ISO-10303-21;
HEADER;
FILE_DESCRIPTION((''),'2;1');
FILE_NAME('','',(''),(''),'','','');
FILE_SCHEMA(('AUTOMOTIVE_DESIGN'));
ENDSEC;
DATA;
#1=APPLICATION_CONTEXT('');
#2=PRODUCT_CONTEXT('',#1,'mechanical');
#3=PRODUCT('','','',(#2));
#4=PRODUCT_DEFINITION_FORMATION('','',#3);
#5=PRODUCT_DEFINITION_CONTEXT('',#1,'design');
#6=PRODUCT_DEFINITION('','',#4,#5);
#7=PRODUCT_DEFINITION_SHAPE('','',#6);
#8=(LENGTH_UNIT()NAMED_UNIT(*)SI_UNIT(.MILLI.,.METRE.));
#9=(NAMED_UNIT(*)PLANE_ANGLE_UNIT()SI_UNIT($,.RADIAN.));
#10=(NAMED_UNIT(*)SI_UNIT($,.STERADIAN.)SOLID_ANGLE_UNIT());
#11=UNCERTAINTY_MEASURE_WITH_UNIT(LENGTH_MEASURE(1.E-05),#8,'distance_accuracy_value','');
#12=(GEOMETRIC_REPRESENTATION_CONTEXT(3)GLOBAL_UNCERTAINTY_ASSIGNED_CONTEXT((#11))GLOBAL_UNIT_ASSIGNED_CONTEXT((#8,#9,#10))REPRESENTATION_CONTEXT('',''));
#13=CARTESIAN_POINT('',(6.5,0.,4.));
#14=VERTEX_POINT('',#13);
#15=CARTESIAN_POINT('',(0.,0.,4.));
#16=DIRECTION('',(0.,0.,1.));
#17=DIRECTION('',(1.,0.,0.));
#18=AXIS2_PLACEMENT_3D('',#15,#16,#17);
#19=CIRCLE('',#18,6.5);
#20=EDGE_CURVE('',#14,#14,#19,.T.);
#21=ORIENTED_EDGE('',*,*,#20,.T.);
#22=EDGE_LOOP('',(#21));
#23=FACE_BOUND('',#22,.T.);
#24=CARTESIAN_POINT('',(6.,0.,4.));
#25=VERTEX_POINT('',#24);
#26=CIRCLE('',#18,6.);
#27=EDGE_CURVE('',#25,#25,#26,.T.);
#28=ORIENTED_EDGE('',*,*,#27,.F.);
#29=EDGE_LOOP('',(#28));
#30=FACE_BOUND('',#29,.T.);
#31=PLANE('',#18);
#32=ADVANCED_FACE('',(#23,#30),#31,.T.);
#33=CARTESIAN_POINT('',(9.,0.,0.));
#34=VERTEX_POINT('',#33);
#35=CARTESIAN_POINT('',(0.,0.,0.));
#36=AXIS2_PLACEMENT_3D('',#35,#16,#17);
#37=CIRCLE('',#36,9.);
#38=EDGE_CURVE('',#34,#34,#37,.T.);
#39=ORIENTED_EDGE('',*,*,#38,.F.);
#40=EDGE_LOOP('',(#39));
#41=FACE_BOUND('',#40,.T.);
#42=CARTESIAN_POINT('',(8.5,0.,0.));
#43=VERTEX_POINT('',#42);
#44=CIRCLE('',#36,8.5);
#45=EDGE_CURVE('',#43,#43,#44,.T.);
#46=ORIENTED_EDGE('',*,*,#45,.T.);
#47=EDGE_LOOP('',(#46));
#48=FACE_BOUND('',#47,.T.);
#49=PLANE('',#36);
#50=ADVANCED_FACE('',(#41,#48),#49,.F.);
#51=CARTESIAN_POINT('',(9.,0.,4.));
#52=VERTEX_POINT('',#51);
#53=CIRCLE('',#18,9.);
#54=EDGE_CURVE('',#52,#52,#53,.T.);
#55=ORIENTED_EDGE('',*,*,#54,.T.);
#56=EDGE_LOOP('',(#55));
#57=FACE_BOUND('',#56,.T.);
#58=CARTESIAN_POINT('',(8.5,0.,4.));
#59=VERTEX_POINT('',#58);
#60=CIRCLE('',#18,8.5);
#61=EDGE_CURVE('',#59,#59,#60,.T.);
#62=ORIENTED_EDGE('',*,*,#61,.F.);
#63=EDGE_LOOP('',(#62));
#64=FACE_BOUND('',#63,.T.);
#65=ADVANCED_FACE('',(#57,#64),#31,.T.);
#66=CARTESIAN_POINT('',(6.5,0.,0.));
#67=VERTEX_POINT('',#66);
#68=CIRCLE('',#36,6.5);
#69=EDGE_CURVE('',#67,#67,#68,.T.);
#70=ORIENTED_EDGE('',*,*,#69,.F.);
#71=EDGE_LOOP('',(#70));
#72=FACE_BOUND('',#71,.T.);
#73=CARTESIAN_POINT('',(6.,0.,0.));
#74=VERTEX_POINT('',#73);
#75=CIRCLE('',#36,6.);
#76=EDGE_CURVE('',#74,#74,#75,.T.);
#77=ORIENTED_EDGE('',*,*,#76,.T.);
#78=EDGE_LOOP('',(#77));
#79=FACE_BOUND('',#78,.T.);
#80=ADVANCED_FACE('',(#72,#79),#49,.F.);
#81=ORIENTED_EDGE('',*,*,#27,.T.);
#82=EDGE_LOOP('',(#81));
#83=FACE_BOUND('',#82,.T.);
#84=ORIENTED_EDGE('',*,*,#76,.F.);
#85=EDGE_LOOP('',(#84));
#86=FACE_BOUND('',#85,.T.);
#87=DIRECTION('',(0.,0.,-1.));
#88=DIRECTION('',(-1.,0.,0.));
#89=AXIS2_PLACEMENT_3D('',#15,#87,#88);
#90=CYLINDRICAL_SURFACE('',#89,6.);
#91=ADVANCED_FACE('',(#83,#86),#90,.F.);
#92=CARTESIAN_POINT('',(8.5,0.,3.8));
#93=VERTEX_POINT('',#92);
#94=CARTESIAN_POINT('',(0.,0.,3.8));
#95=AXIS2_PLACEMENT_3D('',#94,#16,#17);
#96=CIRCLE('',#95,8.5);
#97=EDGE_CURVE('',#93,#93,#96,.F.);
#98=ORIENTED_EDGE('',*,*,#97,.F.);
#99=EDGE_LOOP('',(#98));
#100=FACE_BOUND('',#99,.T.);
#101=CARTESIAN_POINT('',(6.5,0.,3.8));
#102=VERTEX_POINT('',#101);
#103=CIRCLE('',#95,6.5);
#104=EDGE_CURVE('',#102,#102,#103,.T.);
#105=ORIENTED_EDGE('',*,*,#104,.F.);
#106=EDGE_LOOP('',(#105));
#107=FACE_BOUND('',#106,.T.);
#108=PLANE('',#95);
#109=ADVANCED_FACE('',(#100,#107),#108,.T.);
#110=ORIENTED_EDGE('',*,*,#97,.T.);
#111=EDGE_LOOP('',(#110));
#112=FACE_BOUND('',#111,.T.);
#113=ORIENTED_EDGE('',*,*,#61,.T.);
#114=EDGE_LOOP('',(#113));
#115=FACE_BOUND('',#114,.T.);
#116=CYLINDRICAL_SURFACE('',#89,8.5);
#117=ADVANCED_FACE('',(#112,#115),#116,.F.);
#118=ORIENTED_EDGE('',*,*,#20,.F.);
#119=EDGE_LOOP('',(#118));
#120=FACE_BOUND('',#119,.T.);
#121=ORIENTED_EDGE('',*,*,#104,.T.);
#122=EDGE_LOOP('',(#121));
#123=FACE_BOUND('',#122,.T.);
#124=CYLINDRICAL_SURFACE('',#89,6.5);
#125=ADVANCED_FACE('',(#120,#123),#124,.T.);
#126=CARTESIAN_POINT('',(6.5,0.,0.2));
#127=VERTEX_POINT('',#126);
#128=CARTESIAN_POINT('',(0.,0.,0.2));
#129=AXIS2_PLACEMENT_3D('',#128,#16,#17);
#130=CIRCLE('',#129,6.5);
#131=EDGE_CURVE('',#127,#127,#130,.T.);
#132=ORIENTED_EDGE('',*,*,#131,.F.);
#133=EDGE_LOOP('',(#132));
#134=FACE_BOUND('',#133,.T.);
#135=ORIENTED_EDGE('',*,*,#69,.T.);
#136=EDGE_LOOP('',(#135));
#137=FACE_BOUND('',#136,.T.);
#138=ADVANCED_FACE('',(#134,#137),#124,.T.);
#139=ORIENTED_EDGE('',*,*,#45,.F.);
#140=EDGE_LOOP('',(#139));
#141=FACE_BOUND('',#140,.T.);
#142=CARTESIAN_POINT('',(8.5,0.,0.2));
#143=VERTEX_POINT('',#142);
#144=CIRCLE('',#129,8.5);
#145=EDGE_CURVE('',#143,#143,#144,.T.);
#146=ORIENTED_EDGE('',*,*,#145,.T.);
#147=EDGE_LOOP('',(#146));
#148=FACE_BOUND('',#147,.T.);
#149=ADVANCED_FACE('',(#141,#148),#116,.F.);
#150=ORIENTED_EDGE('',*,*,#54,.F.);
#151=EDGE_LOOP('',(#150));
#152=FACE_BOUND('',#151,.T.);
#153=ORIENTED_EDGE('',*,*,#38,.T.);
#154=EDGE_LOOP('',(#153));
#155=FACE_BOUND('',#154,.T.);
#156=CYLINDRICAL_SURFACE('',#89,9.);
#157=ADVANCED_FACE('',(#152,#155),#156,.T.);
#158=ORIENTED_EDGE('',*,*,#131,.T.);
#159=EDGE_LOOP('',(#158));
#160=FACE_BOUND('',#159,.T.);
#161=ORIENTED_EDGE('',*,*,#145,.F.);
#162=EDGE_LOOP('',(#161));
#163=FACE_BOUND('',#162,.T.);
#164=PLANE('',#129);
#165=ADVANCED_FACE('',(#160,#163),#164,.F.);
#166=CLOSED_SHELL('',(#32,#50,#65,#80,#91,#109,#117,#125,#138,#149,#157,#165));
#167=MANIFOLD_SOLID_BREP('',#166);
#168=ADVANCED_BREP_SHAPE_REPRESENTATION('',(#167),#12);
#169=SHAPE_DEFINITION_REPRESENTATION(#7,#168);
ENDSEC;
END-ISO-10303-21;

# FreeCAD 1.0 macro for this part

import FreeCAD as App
import Part
import Sketcher
Q = App.Units.Quantity

doc = App.newDocument("Part")
body = doc.addObject("PartDesign::Body", "Body")

# Sketch on XY plane
sketch1 = doc.addObject("Sketcher::SketchObject", "Sketch")
body.addObject(sketch1)
sketch1.AttachmentSupport = (doc.XY_Plane, [""])
sketch1.MapMode = "FlatFace"
sketch1.addGeometry(Part.Circle(App.Vector(0, 0, 0), App.Vector(0, 0, 1), 6), False)
sketch1.addGeometry(Part.Circle(App.Vector(0, 0, 0), App.Vector(0, 0, 1), 6), False)
sketch1.addConstraint(Sketcher.Constraint("Coincident", 0, 3, -1, 1))
sketch1.addConstraint(Sketcher.Constraint("Coincident", 1, 3, -1, 1))
sketch1.addConstraint(Sketcher.Constraint("Diameter", 0, Q("13 mm")))
sketch1.addConstraint(Sketcher.Constraint("Diameter", 1, Q("12 mm")))
pad1 = doc.addObject("PartDesign::Pad", "Pad")
body.addObject(pad1)
pad1.Profile = sketch1
pad1.Length = 4
body2 = doc.addObject("PartDesign::Body", "Body001")

# Sketch on XY plane
sketch2 = doc.addObject("Sketcher::SketchObject", "Sketch001")
body2.addObject(sketch2)
sketch2.AttachmentSupport = (doc.getObject("XY_Plane001"), [""])
sketch2.MapMode = "FlatFace"
sketch2.addGeometry(Part.Circle(App.Vector(0, 0, 0), App.Vector(0, 0, 1), 9), False)
sketch2.addGeometry(Part.Circle(App.Vector(0, 0, 0), App.Vector(0, 0, 1), 8), False)
sketch2.addConstraint(Sketcher.Constraint("Coincident", 0, 3, -1, 1))
sketch2.addConstraint(Sketcher.Constraint("Coincident", 1, 3, -1, 1))
sketch2.addConstraint(Sketcher.Constraint("Diameter", 0, Q("18 mm")))
sketch2.addConstraint(Sketcher.Constraint("Diameter", 1, Q("17 mm")))
pad2 = doc.addObject("PartDesign::Pad", "Pad001")
body2.addObject(pad2)
pad2.Profile = sketch2
pad2.Length = 4
body.AllowCompound = True
doc.recompute()

boolean = doc.addObject("PartDesign::Boolean", "Boolean")
body.addObject(boolean)
boolean.Type = "Fuse"
boolean.addObjects([body2])

# Sketch on XY plane
sketch3 = doc.addObject("Sketcher::SketchObject", "Sketch002")
body.addObject(sketch3)
sketch3.AttachmentSupport = (doc.XY_Plane, [""])
sketch3.MapMode = "FlatFace"
sketch3.AttachmentOffset = App.Placement(App.Vector(0, 0, 0.2), App.Rotation())
sketch3.addGeometry(Part.Circle(App.Vector(0, 0, 0), App.Vector(0, 0, 1), 8), False)
sketch3.addGeometry(Part.Circle(App.Vector(0, 0, 0), App.Vector(0, 0, 1), 6), False)
sketch3.addConstraint(Sketcher.Constraint("Coincident", 0, 3, -1, 1))
sketch3.addConstraint(Sketcher.Constraint("Coincident", 1, 3, -1, 1))
sketch3.addConstraint(Sketcher.Constraint("Diameter", 0, Q("17 mm")))
sketch3.addConstraint(Sketcher.Constraint("Diameter", 1, Q("13 mm")))
pad3 = doc.addObject("PartDesign::Pad", "Pad002")
body.addObject(pad3)
pad3.Profile = sketch3
pad3.Length = 3.6

doc.recompute()
